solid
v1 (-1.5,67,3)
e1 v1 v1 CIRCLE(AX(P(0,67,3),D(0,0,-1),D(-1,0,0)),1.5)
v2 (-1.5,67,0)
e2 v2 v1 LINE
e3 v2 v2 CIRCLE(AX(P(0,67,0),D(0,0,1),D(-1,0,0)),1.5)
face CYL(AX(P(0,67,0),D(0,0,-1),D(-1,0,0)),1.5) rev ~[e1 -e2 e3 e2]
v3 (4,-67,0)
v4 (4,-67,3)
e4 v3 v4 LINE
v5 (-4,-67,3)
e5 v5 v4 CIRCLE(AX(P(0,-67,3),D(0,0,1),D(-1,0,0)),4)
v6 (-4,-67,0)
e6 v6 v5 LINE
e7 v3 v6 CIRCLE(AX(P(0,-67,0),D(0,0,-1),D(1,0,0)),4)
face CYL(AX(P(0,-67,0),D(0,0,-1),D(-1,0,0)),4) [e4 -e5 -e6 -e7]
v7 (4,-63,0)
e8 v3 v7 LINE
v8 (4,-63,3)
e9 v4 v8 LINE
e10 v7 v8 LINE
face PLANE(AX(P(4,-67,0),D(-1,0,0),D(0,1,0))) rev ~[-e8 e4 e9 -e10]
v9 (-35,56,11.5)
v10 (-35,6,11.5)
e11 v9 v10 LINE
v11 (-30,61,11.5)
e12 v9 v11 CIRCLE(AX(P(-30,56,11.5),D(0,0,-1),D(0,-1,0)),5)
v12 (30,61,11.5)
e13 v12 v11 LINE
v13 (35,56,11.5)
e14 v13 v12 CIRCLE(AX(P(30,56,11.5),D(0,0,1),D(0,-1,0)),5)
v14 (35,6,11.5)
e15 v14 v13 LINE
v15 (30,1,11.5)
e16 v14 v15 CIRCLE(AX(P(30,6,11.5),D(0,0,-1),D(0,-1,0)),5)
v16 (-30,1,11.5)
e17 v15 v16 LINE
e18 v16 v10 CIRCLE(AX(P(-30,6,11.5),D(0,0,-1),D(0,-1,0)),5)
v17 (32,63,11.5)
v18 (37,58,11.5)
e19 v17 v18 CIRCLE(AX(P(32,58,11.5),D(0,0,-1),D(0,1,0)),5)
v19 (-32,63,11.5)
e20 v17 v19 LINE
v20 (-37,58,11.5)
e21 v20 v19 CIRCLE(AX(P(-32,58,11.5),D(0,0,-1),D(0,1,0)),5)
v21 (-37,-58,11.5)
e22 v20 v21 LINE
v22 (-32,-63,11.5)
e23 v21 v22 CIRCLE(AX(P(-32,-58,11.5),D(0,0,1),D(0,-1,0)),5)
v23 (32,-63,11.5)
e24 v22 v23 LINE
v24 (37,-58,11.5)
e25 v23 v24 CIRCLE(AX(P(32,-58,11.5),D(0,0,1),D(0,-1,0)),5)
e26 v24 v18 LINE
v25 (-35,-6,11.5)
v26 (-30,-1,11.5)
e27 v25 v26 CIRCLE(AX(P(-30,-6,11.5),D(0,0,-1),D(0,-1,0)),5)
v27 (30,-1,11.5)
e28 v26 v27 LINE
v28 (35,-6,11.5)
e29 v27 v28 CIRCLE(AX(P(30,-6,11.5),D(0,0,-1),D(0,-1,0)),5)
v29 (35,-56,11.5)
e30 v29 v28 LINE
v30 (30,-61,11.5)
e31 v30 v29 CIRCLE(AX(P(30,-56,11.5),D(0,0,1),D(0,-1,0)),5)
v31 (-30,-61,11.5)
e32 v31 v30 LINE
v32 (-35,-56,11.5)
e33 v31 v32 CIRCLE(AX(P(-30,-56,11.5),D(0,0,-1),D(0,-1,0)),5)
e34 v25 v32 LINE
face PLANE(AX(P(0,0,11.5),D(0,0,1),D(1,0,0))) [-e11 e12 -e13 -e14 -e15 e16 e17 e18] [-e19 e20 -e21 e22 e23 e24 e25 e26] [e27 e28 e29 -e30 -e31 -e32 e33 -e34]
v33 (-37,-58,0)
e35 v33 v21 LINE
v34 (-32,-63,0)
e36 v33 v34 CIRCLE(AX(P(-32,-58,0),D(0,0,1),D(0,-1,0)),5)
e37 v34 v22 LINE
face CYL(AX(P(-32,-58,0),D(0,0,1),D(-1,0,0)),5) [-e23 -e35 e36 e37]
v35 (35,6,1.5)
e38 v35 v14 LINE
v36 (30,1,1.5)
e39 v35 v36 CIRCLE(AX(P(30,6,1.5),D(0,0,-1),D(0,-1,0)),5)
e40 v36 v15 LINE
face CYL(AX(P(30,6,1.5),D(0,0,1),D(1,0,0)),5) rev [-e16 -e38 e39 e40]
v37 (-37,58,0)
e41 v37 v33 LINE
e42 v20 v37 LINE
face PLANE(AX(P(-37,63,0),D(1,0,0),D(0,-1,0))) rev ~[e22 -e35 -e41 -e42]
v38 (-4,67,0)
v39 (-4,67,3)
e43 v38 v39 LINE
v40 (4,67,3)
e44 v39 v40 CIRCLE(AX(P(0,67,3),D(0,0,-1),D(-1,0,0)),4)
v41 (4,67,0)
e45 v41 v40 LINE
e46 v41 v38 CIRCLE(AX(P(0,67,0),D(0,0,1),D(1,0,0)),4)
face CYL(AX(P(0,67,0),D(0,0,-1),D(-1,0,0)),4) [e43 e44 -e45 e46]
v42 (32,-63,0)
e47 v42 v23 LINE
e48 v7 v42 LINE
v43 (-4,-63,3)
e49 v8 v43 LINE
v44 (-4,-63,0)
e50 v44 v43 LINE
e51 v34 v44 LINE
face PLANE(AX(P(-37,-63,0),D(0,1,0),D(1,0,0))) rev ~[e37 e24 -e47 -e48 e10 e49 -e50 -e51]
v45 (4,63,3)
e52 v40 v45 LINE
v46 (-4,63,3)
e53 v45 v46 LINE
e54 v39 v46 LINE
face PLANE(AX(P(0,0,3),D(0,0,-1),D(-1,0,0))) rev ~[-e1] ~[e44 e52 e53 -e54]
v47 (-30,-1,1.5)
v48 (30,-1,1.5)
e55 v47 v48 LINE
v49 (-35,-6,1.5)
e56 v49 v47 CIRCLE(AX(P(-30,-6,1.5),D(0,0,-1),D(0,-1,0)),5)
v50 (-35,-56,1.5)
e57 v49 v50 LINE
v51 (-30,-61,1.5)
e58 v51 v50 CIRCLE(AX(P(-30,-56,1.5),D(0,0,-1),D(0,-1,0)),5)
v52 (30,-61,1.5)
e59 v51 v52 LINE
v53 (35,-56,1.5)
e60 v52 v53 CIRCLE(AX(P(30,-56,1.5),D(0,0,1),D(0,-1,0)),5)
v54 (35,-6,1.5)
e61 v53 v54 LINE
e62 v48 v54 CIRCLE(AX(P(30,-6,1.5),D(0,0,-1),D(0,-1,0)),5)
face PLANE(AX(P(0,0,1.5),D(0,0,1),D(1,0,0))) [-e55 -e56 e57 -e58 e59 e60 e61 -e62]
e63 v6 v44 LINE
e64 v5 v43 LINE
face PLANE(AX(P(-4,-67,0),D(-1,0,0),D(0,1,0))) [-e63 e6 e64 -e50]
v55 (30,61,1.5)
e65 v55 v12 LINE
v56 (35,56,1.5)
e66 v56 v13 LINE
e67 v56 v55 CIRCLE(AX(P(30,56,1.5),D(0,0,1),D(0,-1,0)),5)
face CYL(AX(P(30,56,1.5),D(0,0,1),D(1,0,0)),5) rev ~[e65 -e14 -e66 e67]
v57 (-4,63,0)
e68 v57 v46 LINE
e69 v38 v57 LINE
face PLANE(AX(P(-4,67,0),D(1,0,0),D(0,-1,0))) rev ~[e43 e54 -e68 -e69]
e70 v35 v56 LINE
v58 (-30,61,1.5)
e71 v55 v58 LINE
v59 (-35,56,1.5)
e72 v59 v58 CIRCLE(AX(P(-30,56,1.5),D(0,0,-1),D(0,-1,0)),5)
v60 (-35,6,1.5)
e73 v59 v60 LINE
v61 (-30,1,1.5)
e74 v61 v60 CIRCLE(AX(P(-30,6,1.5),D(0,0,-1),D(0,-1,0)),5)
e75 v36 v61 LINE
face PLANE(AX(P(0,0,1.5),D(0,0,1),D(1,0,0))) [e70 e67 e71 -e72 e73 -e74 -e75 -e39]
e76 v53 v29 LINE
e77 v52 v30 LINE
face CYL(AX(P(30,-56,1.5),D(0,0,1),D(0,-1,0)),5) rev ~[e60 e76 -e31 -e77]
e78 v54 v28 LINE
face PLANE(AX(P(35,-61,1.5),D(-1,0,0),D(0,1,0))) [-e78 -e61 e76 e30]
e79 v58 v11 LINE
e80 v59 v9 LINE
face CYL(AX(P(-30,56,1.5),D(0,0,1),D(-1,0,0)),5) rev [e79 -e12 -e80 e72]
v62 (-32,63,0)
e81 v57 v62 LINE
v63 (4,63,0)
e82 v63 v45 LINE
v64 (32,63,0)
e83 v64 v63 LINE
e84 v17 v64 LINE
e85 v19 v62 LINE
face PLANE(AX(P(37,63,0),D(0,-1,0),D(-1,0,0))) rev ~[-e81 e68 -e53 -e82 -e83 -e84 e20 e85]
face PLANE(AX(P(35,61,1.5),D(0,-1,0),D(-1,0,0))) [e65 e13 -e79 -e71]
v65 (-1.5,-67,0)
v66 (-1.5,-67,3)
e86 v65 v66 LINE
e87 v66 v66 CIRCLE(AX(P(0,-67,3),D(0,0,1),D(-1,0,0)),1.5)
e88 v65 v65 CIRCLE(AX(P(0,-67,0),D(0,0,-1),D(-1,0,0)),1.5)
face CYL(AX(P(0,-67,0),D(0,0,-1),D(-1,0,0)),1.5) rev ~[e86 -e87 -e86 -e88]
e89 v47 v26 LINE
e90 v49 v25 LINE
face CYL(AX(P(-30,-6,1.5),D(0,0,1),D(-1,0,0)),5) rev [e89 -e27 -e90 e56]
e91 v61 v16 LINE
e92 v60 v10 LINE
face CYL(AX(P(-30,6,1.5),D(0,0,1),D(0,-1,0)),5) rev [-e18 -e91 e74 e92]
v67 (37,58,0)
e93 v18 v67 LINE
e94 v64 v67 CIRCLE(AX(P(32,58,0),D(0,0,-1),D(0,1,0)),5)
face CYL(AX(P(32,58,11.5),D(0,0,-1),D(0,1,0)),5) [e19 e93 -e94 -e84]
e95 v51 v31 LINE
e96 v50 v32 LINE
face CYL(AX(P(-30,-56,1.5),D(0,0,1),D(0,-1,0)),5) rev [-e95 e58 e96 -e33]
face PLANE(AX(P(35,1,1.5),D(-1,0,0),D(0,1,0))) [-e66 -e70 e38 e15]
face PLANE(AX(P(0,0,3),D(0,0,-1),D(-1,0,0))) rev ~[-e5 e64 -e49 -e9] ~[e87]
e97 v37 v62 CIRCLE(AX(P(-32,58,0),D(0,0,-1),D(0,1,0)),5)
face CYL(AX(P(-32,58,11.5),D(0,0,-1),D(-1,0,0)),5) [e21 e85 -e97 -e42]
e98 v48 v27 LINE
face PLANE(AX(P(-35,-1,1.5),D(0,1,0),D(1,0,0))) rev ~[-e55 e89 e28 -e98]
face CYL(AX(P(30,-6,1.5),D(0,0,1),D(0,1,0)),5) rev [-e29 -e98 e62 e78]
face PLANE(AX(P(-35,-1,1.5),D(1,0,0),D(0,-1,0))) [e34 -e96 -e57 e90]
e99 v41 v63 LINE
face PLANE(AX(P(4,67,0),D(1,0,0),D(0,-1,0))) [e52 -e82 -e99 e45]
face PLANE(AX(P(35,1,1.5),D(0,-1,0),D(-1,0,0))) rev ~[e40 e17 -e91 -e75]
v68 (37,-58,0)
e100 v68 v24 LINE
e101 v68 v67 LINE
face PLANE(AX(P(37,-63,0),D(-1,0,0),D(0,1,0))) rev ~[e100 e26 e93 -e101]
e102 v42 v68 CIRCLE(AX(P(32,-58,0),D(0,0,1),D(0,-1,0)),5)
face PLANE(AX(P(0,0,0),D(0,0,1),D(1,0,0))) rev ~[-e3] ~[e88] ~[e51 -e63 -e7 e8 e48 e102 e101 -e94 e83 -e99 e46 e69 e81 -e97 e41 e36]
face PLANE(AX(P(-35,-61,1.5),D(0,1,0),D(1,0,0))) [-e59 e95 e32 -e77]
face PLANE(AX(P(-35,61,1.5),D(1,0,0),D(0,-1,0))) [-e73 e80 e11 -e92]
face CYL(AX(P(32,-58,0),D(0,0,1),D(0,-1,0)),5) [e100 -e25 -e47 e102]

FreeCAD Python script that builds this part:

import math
import FreeCAD as App
import Part
import Sketcher
from FreeCAD import Vector
Q = App.Units.Quantity


def edges_at(feature, points):
    """Names of the edges that pass closest to the given points."""
    edges = feature.Shape.Edges
    near = lambda p: min(range(len(edges)), key=lambda i: edges[i].distToShape(Part.Vertex(*p))[0])
    return sorted({f"Edge{near(p) + 1}" for p in points})

doc = App.newDocument("Part")
body = doc.addObject("PartDesign::Body", "Body")

# Sketch on XY plane
sketch1 = body.newObject("Sketcher::SketchObject", "Sketch")
sketch1.AttachmentSupport = (doc.getObject("XY_Plane"), [""])
sketch1.MapMode = "FlatFace"
sketch1.addGeometry(Part.LineSegment(Vector(-37, 63, 0), Vector(-37, -63, 0)), False)
sketch1.addGeometry(Part.LineSegment(Vector(-37, -63, 0), Vector(37, -63, 0)), False)
sketch1.addGeometry(Part.LineSegment(Vector(37, -63, 0), Vector(37, 63, 0)), False)
sketch1.addGeometry(Part.LineSegment(Vector(37, 63, 0), Vector(-37, 63, 0)), False)
sketch1.addConstraint(Sketcher.Constraint("Coincident", 0, 2, 1, 1))
sketch1.addConstraint(Sketcher.Constraint("Coincident", 1, 2, 2, 1))
sketch1.addConstraint(Sketcher.Constraint("Coincident", 2, 2, 3, 1))
sketch1.addConstraint(Sketcher.Constraint("Coincident", 3, 2, 0, 1))
sketch1.addConstraint(Sketcher.Constraint("Vertical", 0))
sketch1.addConstraint(Sketcher.Constraint("Horizontal", 1))
sketch1.addConstraint(Sketcher.Constraint("Vertical", 2))
sketch1.addConstraint(Sketcher.Constraint("Horizontal", 3))
sketch1.addConstraint(Sketcher.Constraint("Symmetric", 0, 2, 2, 2, -1, 1))
sketch1.addConstraint(Sketcher.Constraint("DistanceX", 1, 1, 1, 2, Q("74 mm")))
sketch1.addConstraint(Sketcher.Constraint("DistanceY", 0, 2, 0, 1, Q("126 mm")))
pad1 = body.newObject("PartDesign::Pad", "Pad")
pad1.Profile = sketch1
pad1.Length = 1.5

# Sketch on XY plane
sketch2 = body.newObject("Sketcher::SketchObject", "Sketch001")
sketch2.AttachmentSupport = (doc.getObject("XY_Plane"), [""])
sketch2.MapMode = "FlatFace"
sketch2.AttachmentOffset = App.Placement(Vector(0, 0, 1.5), App.Rotation())
sketch2.addGeometry(Part.LineSegment(Vector(-37, -63, 0), Vector(37, -63, 0)), False)
sketch2.addGeometry(Part.LineSegment(Vector(37, -63, 0), Vector(37, 63, 0)), False)
sketch2.addGeometry(Part.LineSegment(Vector(37, 63, 0), Vector(-37, 63, 0)), False)
sketch2.addGeometry(Part.LineSegment(Vector(-37, 63, 0), Vector(-37, -63, 0)), False)
sketch2.addGeometry(Part.LineSegment(Vector(35, -61, 0), Vector(-35, -61, 0)), False)
sketch2.addGeometry(Part.LineSegment(Vector(-35, -61, 0), Vector(-35, -1, 0)), False)
sketch2.addGeometry(Part.LineSegment(Vector(-35, -1, 0), Vector(35, -1, 0)), False)
sketch2.addGeometry(Part.LineSegment(Vector(35, -1, 0), Vector(35, -61, 0)), False)
sketch2.addGeometry(Part.LineSegment(Vector(35, 61, 0), Vector(35, 1, 0)), False)
sketch2.addGeometry(Part.LineSegment(Vector(35, 1, 0), Vector(-35, 1, 0)), False)
sketch2.addGeometry(Part.LineSegment(Vector(-35, 1, 0), Vector(-35, 61, 0)), False)
sketch2.addGeometry(Part.LineSegment(Vector(-35, 61, 0), Vector(35, 61, 0)), False)
sketch2.addConstraint(Sketcher.Constraint("Coincident", 0, 2, 1, 1))
sketch2.addConstraint(Sketcher.Constraint("Coincident", 1, 2, 2, 1))
sketch2.addConstraint(Sketcher.Constraint("Coincident", 2, 2, 3, 1))
sketch2.addConstraint(Sketcher.Constraint("Coincident", 3, 2, 0, 1))
sketch2.addConstraint(Sketcher.Constraint("Coincident", 4, 2, 5, 1))
sketch2.addConstraint(Sketcher.Constraint("Coincident", 5, 2, 6, 1))
sketch2.addConstraint(Sketcher.Constraint("Coincident", 6, 2, 7, 1))
sketch2.addConstraint(Sketcher.Constraint("Coincident", 7, 2, 4, 1))
sketch2.addConstraint(Sketcher.Constraint("Coincident", 8, 2, 9, 1))
sketch2.addConstraint(Sketcher.Constraint("Coincident", 9, 2, 10, 1))
sketch2.addConstraint(Sketcher.Constraint("Coincident", 10, 2, 11, 1))
sketch2.addConstraint(Sketcher.Constraint("Coincident", 11, 2, 8, 1))
sketch2.addConstraint(Sketcher.Constraint("Horizontal", 0))
sketch2.addConstraint(Sketcher.Constraint("Vertical", 1))
sketch2.addConstraint(Sketcher.Constraint("Horizontal", 2))
sketch2.addConstraint(Sketcher.Constraint("Vertical", 3))
sketch2.addConstraint(Sketcher.Constraint("Horizontal", 4))
sketch2.addConstraint(Sketcher.Constraint("Vertical", 5))
sketch2.addConstraint(Sketcher.Constraint("Horizontal", 6))
sketch2.addConstraint(Sketcher.Constraint("Vertical", 7))
sketch2.addConstraint(Sketcher.Constraint("Vertical", 8))
sketch2.addConstraint(Sketcher.Constraint("Horizontal", 9))
sketch2.addConstraint(Sketcher.Constraint("Vertical", 10))
sketch2.addConstraint(Sketcher.Constraint("Horizontal", 11))
sketch2.addConstraint(Sketcher.Constraint("Symmetric", 0, 2, 2, 2, -1, 1))
sketch2.addConstraint(Sketcher.Constraint("Symmetric", 5, 2, 8, 2, -1, 1))
sketch2.addConstraint(Sketcher.Constraint("Symmetric", 7, 2, 10, 2, -1, 1))
sketch2.addConstraint(Sketcher.Constraint("Vertical", 7, 2, 8, 2))
sketch2.addConstraint(Sketcher.Constraint("DistanceX", 4, 2, 4, 1, Q("70 mm")))
sketch2.addConstraint(Sketcher.Constraint("DistanceX", 3, 2, 4, 2, Q("2 mm")))
sketch2.addConstraint(Sketcher.Constraint("DistanceY", 3, 2, 4, 2, Q("2 mm")))
sketch2.addConstraint(Sketcher.Constraint("DistanceY", 6, 2, 8, 2, Q("2 mm")))
sketch2.addConstraint(Sketcher.Constraint("DistanceY", 1, 1, 1, 2, Q("126 mm")))
pad2 = body.newObject("PartDesign::Pad", "Pad001")
pad2.Profile = sketch2
pad2.Length = 10
doc.recompute()

fillet = body.newObject("PartDesign::Fillet", "Fillet")
fillet.Base = (pad2, edges_at(pad2, [
    (37, 63, 5.75),
    (-37, 63, 5.75),
    (37, -63, 5.75),
    (-37, -63, 5.75),
    (-35, 61, 6.5),
    (35, 61, 6.5),
    (35, 1, 6.5),
    (35, -1, 6.5),
    (-35, 1, 6.5),
    (-35, -1, 6.5),
    (-35, -61, 6.5),
    (35, -61, 6.5),
]))
fillet.Radius = 5

# Sketch on XY plane
sketch3 = body.newObject("Sketcher::SketchObject", "Sketch002")
sketch3.AttachmentSupport = (doc.getObject("XY_Plane"), [""])
sketch3.MapMode = "FlatFace"
sketch3.addGeometry(Part.LineSegment(Vector(4, 67, 0), Vector(4, 63, 0)), False)
sketch3.addGeometry(Part.LineSegment(Vector(4, 63, 0), Vector(-4, 63, 0)), False)
sketch3.addGeometry(Part.LineSegment(Vector(-4, 63, 0), Vector(-4, 67, 0)), False)
sketch3.addGeometry(Part.ArcOfCircle(Part.Circle(Vector(0, 67, 0), Vector(0, 0, 1), 4), math.radians(0), math.radians(180)), False)
sketch3.addGeometry(Part.Circle(Vector(0, 67, 0), Vector(0, 0, 1), 1.5), False)
sketch3.addGeometry(Part.LineSegment(Vector(-4, -63, 0), Vector(4, -63, 0)), False)
sketch3.addGeometry(Part.LineSegment(Vector(4, -63, 0), Vector(4, -67, 0)), False)
sketch3.addGeometry(Part.ArcOfCircle(Part.Circle(Vector(0, -67, 0), Vector(0, 0, 1), 4), math.radians(180), math.radians(360)), False)
sketch3.addGeometry(Part.LineSegment(Vector(-4, -67, 0), Vector(-4, -63, 0)), False)
sketch3.addGeometry(Part.Circle(Vector(0, -67, 0), Vector(0, 0, 1), 1.5), False)
sketch3.addConstraint(Sketcher.Constraint("Coincident", 0, 2, 1, 1))
sketch3.addConstraint(Sketcher.Constraint("Coincident", 1, 2, 2, 1))
sketch3.addConstraint(Sketcher.Constraint("Tangent", 2, 2, 3, 2))
sketch3.addConstraint(Sketcher.Constraint("Tangent", 3, 1, 0, 1))
sketch3.addConstraint(Sketcher.Constraint("Coincident", 5, 2, 6, 1))
sketch3.addConstraint(Sketcher.Constraint("Tangent", 6, 2, 7, 2))
sketch3.addConstraint(Sketcher.Constraint("Tangent", 7, 1, 8, 1))
sketch3.addConstraint(Sketcher.Constraint("Coincident", 8, 2, 5, 1))
sketch3.addConstraint(Sketcher.Constraint("Vertical", 0))
sketch3.addConstraint(Sketcher.Constraint("Horizontal", 1))
sketch3.addConstraint(Sketcher.Constraint("Vertical", 2))
sketch3.addConstraint(Sketcher.Constraint("Horizontal", 5))
sketch3.addConstraint(Sketcher.Constraint("Vertical", 6))
sketch3.addConstraint(Sketcher.Constraint("Vertical", 8))
sketch3.addConstraint(Sketcher.Constraint("Coincident", 4, 3, 3, 3))
sketch3.addConstraint(Sketcher.Constraint("Coincident", 9, 3, 7, 3))
sketch3.addConstraint(Sketcher.Constraint("Equal", 3, 7))
sketch3.addConstraint(Sketcher.Constraint("Equal", 4, 9))
sketch3.addConstraint(Sketcher.Constraint("Symmetric", 3, 3, 7, 3, -1, 1))
sketch3.addConstraint(Sketcher.Constraint("Symmetric", 0, 2, 5, 2, -1))
sketch3.addConstraint(Sketcher.Constraint("Diameter", 4, Q("3 mm")))
sketch3.addConstraint(Sketcher.Constraint("Radius", 3, Q("4 mm")))
sketch3.addConstraint(Sketcher.Constraint("DistanceY", 0, 2, 0, 1, Q("4 mm")))
sketch3.addConstraint(Sketcher.Constraint("DistanceY", -1, 1, 3, 3, Q("67 mm")))
pad3 = body.newObject("PartDesign::Pad", "Pad002")
pad3.Profile = sketch3
pad3.Length = 3

doc.recompute()
